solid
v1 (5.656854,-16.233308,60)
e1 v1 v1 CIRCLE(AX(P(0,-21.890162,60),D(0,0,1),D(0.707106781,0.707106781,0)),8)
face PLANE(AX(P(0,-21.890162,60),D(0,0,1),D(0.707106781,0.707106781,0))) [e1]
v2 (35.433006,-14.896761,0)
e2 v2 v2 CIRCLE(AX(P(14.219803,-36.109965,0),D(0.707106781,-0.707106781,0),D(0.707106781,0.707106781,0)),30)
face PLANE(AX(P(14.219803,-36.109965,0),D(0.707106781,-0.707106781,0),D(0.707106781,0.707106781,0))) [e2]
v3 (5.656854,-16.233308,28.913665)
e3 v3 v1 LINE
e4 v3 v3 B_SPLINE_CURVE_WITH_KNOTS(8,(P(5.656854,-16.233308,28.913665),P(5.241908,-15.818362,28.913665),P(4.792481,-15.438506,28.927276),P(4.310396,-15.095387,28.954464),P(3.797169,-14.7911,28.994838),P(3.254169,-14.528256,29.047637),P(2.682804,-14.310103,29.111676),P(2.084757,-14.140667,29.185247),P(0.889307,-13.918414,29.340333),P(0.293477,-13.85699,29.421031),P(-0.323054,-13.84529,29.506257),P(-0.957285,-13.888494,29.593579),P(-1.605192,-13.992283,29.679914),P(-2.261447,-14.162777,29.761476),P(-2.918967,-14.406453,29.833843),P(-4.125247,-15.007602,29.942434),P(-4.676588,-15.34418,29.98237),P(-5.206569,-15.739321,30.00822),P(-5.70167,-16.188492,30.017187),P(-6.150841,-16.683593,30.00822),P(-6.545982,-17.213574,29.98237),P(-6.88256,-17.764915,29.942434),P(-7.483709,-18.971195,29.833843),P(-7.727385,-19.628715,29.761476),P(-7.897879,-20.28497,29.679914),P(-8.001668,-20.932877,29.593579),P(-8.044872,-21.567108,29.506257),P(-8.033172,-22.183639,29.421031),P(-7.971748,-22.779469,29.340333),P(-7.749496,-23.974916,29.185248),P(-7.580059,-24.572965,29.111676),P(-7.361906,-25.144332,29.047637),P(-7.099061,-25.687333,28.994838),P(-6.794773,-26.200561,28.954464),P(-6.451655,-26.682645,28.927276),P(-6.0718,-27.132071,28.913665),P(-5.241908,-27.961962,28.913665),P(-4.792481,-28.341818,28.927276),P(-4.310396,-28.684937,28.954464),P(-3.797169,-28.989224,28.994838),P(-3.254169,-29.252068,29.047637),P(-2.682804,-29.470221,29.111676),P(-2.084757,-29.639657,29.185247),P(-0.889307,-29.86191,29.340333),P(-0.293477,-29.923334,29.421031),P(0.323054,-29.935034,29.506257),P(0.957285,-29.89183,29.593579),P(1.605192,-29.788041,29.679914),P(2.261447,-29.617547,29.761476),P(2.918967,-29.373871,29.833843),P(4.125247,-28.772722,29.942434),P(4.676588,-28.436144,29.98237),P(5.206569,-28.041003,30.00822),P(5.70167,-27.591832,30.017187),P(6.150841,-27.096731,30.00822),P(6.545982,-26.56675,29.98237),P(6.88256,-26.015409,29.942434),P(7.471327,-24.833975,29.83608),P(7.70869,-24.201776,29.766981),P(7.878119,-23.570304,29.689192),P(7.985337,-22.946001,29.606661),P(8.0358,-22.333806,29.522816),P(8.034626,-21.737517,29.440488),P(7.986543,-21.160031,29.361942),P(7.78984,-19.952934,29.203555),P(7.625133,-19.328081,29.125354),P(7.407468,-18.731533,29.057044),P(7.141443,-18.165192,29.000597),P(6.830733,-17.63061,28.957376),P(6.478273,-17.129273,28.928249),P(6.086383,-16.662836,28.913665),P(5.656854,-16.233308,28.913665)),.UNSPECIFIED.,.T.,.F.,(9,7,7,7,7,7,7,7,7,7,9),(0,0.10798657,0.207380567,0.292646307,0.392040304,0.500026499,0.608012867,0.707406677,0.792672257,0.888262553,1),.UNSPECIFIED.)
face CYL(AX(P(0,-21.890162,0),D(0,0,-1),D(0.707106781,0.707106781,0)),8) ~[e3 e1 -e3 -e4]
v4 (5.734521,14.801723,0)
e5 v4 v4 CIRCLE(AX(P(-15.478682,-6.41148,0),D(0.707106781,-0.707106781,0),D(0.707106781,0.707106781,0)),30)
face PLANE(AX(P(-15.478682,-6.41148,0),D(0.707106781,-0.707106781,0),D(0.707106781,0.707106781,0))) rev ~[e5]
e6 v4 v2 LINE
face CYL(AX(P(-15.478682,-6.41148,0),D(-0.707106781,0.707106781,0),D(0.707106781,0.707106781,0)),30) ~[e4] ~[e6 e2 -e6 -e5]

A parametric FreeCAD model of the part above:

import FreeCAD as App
import Part
import Sketcher
from FreeCAD import Vector

doc = App.newDocument("Part")
body = doc.addObject("PartDesign::Body", "Body")

sketch1 = body.newObject("Sketcher::SketchObject", "Sketch")
sketch1.AttachmentSupport = (doc.getObject("XZ_Plane"), [""])
sketch1.MapMode = "FlatFace"
sketch1.addGeometry(Part.Circle(Vector(0, 0, 0), Vector(0, 0, 1), 30), False)
sketch1.addConstraint(Sketcher.Constraint("Coincident", 0, 3, -1, 1))
sketch1.addConstraint(Sketcher.Constraint("Diameter", 0, 60.0))
pad1 = body.newObject("PartDesign::Pad", "Pad")
pad1.Profile = sketch1
pad1.Length = 42

sketch2 = body.newObject("Sketcher::SketchObject", "Sketch001")
sketch2.AttachmentSupport = (doc.getObject("XY_Plane"), [""])
sketch2.MapMode = "FlatFace"
sketch2.addGeometry(Part.Circle(Vector(0, -21.890162, 0), Vector(0, 0, 1), 8), False)
sketch2.addConstraint(Sketcher.Constraint("PointOnObject", 0, 3, -2))
sketch2.addConstraint(Sketcher.Constraint("Diameter", 0, 16.0))
sketch2.addConstraint(Sketcher.Constraint("DistanceY", 0, 3, -1, 1, 21.890162))
pad2 = body.newObject("PartDesign::Pad", "Pad001")
pad2.Profile = sketch2
pad2.Length = 60
body2 = doc.addObject("PartDesign::Body", "Body001")
doc.recompute()

body.Placement = App.Placement(Vector(-15.478682, -6.41148, 0), App.Rotation(Vector(0, 0, 1), 45))
boolean = body2.newObject("PartDesign::Boolean", "Boolean")
boolean.Type = "Fuse"
boolean.addObjects([body])

doc.recompute()
